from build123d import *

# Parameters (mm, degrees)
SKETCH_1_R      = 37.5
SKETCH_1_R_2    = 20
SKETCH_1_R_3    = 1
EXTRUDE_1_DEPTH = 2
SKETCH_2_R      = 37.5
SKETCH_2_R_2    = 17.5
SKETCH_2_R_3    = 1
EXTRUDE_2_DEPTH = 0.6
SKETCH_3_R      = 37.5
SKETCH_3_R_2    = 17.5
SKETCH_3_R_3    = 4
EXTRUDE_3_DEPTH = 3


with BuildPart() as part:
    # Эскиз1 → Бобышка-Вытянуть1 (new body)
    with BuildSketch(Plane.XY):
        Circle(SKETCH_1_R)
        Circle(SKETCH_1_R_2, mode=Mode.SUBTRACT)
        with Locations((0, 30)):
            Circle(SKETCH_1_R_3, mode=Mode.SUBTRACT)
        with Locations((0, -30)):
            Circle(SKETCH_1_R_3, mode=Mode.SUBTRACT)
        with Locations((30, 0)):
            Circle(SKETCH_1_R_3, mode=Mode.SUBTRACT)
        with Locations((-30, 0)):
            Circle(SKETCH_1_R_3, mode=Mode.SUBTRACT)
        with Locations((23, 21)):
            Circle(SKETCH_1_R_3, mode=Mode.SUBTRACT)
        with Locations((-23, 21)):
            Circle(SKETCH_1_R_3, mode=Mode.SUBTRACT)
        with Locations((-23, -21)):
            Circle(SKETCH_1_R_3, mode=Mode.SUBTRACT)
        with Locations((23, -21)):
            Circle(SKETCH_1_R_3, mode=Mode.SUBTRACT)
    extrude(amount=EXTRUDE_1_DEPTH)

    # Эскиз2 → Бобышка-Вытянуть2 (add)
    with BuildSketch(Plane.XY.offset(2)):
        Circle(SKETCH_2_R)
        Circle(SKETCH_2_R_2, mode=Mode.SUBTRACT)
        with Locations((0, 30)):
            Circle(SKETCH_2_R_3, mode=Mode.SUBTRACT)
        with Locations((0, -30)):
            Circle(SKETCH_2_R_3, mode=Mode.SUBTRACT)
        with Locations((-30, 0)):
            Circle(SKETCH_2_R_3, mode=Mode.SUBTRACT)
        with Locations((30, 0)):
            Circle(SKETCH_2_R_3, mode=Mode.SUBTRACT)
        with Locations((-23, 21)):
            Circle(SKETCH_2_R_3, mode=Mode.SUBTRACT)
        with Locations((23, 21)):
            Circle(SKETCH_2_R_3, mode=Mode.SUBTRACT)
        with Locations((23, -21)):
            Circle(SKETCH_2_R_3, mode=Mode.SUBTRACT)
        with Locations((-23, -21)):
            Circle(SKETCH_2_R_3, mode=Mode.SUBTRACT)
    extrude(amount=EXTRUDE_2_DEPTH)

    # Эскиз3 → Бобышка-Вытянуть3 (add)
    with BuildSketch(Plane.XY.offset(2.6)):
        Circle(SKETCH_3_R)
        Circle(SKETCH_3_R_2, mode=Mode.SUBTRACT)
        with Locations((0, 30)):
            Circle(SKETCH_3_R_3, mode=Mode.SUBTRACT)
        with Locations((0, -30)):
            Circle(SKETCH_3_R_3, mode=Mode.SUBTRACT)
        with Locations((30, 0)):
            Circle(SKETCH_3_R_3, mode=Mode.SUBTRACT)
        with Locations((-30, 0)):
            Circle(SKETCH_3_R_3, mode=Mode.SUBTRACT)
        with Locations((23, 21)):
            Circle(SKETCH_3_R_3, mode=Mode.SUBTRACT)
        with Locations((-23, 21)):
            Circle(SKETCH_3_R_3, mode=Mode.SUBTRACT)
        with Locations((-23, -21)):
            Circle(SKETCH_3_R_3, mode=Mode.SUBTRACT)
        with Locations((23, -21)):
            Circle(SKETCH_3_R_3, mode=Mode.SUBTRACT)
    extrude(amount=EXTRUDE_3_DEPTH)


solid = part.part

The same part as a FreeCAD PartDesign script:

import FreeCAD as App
import Part
import Sketcher
from FreeCAD import Vector

doc = App.newDocument("Part")
body = doc.addObject("PartDesign::Body", "Body")

sketch1 = body.newObject("Sketcher::SketchObject", "Sketch")
sketch1.AttachmentSupport = (doc.getObject("XY_Plane"), [""])
sketch1.MapMode = "FlatFace"
sketch1.addGeometry(Part.Circle(Vector(0, 0, 0), Vector(0, 0, 1), 37.5), False)
sketch1.addGeometry(Part.Circle(Vector(-23, -21, 0), Vector(0, 0, 1), 1), False)
sketch1.addGeometry(Part.Circle(Vector(0, -30, 0), Vector(0, 0, 1), 1), False)
sketch1.addGeometry(Part.Circle(Vector(23, -21, 0), Vector(0, 0, 1), 1), False)
sketch1.addGeometry(Part.Circle(Vector(-30, 0, 0), Vector(0, 0, 1), 1), False)
sketch1.addGeometry(Part.Circle(Vector(-23, 21, 0), Vector(0, 0, 1), 1), False)
sketch1.addGeometry(Part.Circle(Vector(0, 0, 0), Vector(0, 0, 1), 20), False)
sketch1.addGeometry(Part.Circle(Vector(30, 0, 0), Vector(0, 0, 1), 1), False)
sketch1.addGeometry(Part.Circle(Vector(0, 30, 0), Vector(0, 0, 1), 1), False)
sketch1.addGeometry(Part.Circle(Vector(23, 21, 0), Vector(0, 0, 1), 1), False)
sketch1.addConstraint(Sketcher.Constraint("Coincident", 0, 3, -1, 1))
sketch1.addConstraint(Sketcher.Constraint("Coincident", 6, 3, -1, 1))
sketch1.addConstraint(Sketcher.Constraint("Equal", 1, 2))
sketch1.addConstraint(Sketcher.Constraint("Equal", 2, 3))
sketch1.addConstraint(Sketcher.Constraint("Equal", 3, 4))
sketch1.addConstraint(Sketcher.Constraint("Equal", 4, 5))
sketch1.addConstraint(Sketcher.Constraint("Equal", 5, 7))
sketch1.addConstraint(Sketcher.Constraint("Equal", 7, 8))
sketch1.addConstraint(Sketcher.Constraint("Equal", 8, 9))
sketch1.addConstraint(Sketcher.Constraint("Symmetric", 3, 3, 5, 3, -1, 1))
sketch1.addConstraint(Sketcher.Constraint("Symmetric", 4, 3, 7, 3, -1, 1))
sketch1.addConstraint(Sketcher.Constraint("Symmetric", 2, 3, 8, 3, -1, 1))
sketch1.addConstraint(Sketcher.Constraint("Symmetric", 1, 3, 9, 3, -1, 1))
sketch1.addConstraint(Sketcher.Constraint("Symmetric", 1, 3, 3, 3, -2))
sketch1.addConstraint(Sketcher.Constraint("PointOnObject", 2, 3, -2))
sketch1.addConstraint(Sketcher.Constraint("PointOnObject", 4, 3, -1))
sketch1.addConstraint(Sketcher.Constraint("Diameter", 0, 75.0))
sketch1.addConstraint(Sketcher.Constraint("Diameter", 1, 2.0))
sketch1.addConstraint(Sketcher.Constraint("Diameter", 6, 40.0))
sketch1.addConstraint(Sketcher.Constraint("DistanceX", 1, 3, -1, 1, 23.0))
sketch1.addConstraint(Sketcher.Constraint("DistanceY", 1, 3, -1, 1, 21.0))
sketch1.addConstraint(Sketcher.Constraint("DistanceY", 2, 3, -1, 1, 30.0))
sketch1.addConstraint(Sketcher.Constraint("DistanceX", 4, 3, -1, 1, 30.0))
pad1 = body.newObject("PartDesign::Pad", "Pad")
pad1.Profile = sketch1
pad1.Length = 2

sketch2 = body.newObject("Sketcher::SketchObject", "Sketch001")
sketch2.AttachmentSupport = (doc.getObject("XY_Plane"), [""])
sketch2.MapMode = "FlatFace"
sketch2.AttachmentOffset = App.Placement(Vector(0, 0, 2), App.Rotation())
sketch2.addGeometry(Part.Circle(Vector(0, 0, 0), Vector(0, 0, 1), 37.5), False)
sketch2.addGeometry(Part.Circle(Vector(-23, -21, 0), Vector(0, 0, 1), 1), False)
sketch2.addGeometry(Part.Circle(Vector(0, -30, 0), Vector(0, 0, 1), 1), False)
sketch2.addGeometry(Part.Circle(Vector(23, -21, 0), Vector(0, 0, 1), 1), False)
sketch2.addGeometry(Part.Circle(Vector(-30, 0, 0), Vector(0, 0, 1), 1), False)
sketch2.addGeometry(Part.Circle(Vector(-23, 21, 0), Vector(0, 0, 1), 1), False)
sketch2.addGeometry(Part.Circle(Vector(0, 0, 0), Vector(0, 0, 1), 17.5), False)
sketch2.addGeometry(Part.Circle(Vector(30, 0, 0), Vector(0, 0, 1), 1), False)
sketch2.addGeometry(Part.Circle(Vector(0, 30, 0), Vector(0, 0, 1), 1), False)
sketch2.addGeometry(Part.Circle(Vector(23, 21, 0), Vector(0, 0, 1), 1), False)
sketch2.addConstraint(Sketcher.Constraint("Coincident", 0, 3, -1, 1))
sketch2.addConstraint(Sketcher.Constraint("Coincident", 6, 3, -1, 1))
sketch2.addConstraint(Sketcher.Constraint("Equal", 1, 2))
sketch2.addConstraint(Sketcher.Constraint("Equal", 2, 3))
sketch2.addConstraint(Sketcher.Constraint("Equal", 3, 4))
sketch2.addConstraint(Sketcher.Constraint("Equal", 4, 5))
sketch2.addConstraint(Sketcher.Constraint("Equal", 5, 7))
sketch2.addConstraint(Sketcher.Constraint("Equal", 7, 8))
sketch2.addConstraint(Sketcher.Constraint("Equal", 8, 9))
sketch2.addConstraint(Sketcher.Constraint("Symmetric", 3, 3, 5, 3, -1, 1))
sketch2.addConstraint(Sketcher.Constraint("Symmetric", 4, 3, 7, 3, -1, 1))
sketch2.addConstraint(Sketcher.Constraint("Symmetric", 2, 3, 8, 3, -1, 1))
sketch2.addConstraint(Sketcher.Constraint("Symmetric", 1, 3, 9, 3, -1, 1))
sketch2.addConstraint(Sketcher.Constraint("Symmetric", 1, 3, 3, 3, -2))
sketch2.addConstraint(Sketcher.Constraint("PointOnObject", 2, 3, -2))
sketch2.addConstraint(Sketcher.Constraint("PointOnObject", 4, 3, -1))
sketch2.addConstraint(Sketcher.Constraint("Diameter", 0, 75.0))
sketch2.addConstraint(Sketcher.Constraint("Diameter", 1, 2.0))
sketch2.addConstraint(Sketcher.Constraint("Diameter", 6, 35.0))
sketch2.addConstraint(Sketcher.Constraint("DistanceX", 1, 3, -1, 1, 23.0))
sketch2.addConstraint(Sketcher.Constraint("DistanceY", 1, 3, -1, 1, 21.0))
sketch2.addConstraint(Sketcher.Constraint("DistanceY", 2, 3, -1, 1, 30.0))
sketch2.addConstraint(Sketcher.Constraint("DistanceX", 4, 3, -1, 1, 30.0))
pad2 = body.newObject("PartDesign::Pad", "Pad001")
pad2.Profile = sketch2
pad2.Length = 0.6

sketch3 = body.newObject("Sketcher::SketchObject", "Sketch002")
sketch3.AttachmentSupport = (doc.getObject("XY_Plane"), [""])
sketch3.MapMode = "FlatFace"
sketch3.AttachmentOffset = App.Placement(Vector(0, 0, 2.6), App.Rotation())
sketch3.addGeometry(Part.Circle(Vector(0, 0, 0), Vector(0, 0, 1), 37.5), False)
sketch3.addGeometry(Part.Circle(Vector(-23, -21, 0), Vector(0, 0, 1), 4), False)
sketch3.addGeometry(Part.Circle(Vector(0, -30, 0), Vector(0, 0, 1), 4), False)
sketch3.addGeometry(Part.Circle(Vector(23, -21, 0), Vector(0, 0, 1), 4), False)
sketch3.addGeometry(Part.Circle(Vector(-30, 0, 0), Vector(0, 0, 1), 4), False)
sketch3.addGeometry(Part.Circle(Vector(-23, 21, 0), Vector(0, 0, 1), 4), False)
sketch3.addGeometry(Part.Circle(Vector(0, 0, 0), Vector(0, 0, 1), 17.5), False)
sketch3.addGeometry(Part.Circle(Vector(30, 0, 0), Vector(0, 0, 1), 4), False)
sketch3.addGeometry(Part.Circle(Vector(0, 30, 0), Vector(0, 0, 1), 4), False)
sketch3.addGeometry(Part.Circle(Vector(23, 21, 0), Vector(0, 0, 1), 4), False)
sketch3.addConstraint(Sketcher.Constraint("Coincident", 0, 3, -1, 1))
sketch3.addConstraint(Sketcher.Constraint("Coincident", 6, 3, -1, 1))
sketch3.addConstraint(Sketcher.Constraint("Equal", 1, 2))
sketch3.addConstraint(Sketcher.Constraint("Equal", 2, 3))
sketch3.addConstraint(Sketcher.Constraint("Equal", 3, 4))
sketch3.addConstraint(Sketcher.Constraint("Equal", 4, 5))
sketch3.addConstraint(Sketcher.Constraint("Equal", 5, 7))
sketch3.addConstraint(Sketcher.Constraint("Equal", 7, 8))
sketch3.addConstraint(Sketcher.Constraint("Equal", 8, 9))
sketch3.addConstraint(Sketcher.Constraint("Symmetric", 3, 3, 5, 3, -1, 1))
sketch3.addConstraint(Sketcher.Constraint("Symmetric", 4, 3, 7, 3, -1, 1))
sketch3.addConstraint(Sketcher.Constraint("Symmetric", 2, 3, 8, 3, -1, 1))
sketch3.addConstraint(Sketcher.Constraint("Symmetric", 1, 3, 9, 3, -1, 1))
sketch3.addConstraint(Sketcher.Constraint("Symmetric", 1, 3, 3, 3, -2))
sketch3.addConstraint(Sketcher.Constraint("PointOnObject", 2, 3, -2))
sketch3.addConstraint(Sketcher.Constraint("PointOnObject", 4, 3, -1))
sketch3.addConstraint(Sketcher.Constraint("Diameter", 0, 75.0))
sketch3.addConstraint(Sketcher.Constraint("Diameter", 1, 8.0))
sketch3.addConstraint(Sketcher.Constraint("Diameter", 6, 35.0))
sketch3.addConstraint(Sketcher.Constraint("DistanceX", 1, 3, -1, 1, 23.0))
sketch3.addConstraint(Sketcher.Constraint("DistanceY", 1, 3, -1, 1, 21.0))
sketch3.addConstraint(Sketcher.Constraint("DistanceY", 2, 3, -1, 1, 30.0))
sketch3.addConstraint(Sketcher.Constraint("DistanceX", 4, 3, -1, 1, 30.0))
pad3 = body.newObject("PartDesign::Pad", "Pad002")
pad3.Profile = sketch3
pad3.Length = 3

doc.recompute()
